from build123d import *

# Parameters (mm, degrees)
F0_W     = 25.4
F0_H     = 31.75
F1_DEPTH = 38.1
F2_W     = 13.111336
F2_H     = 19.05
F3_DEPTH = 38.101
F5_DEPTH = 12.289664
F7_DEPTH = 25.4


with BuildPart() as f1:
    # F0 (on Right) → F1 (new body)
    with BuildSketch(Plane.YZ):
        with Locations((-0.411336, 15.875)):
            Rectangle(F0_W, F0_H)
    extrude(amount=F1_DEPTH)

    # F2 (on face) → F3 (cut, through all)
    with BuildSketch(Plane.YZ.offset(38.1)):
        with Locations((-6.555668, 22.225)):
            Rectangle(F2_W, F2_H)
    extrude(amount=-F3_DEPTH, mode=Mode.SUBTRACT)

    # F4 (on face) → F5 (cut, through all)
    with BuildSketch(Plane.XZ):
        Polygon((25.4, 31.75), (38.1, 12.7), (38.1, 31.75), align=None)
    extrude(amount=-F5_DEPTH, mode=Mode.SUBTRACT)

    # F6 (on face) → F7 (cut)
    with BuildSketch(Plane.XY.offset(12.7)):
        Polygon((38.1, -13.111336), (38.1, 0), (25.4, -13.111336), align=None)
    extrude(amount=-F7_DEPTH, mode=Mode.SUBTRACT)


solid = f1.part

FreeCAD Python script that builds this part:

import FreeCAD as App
import Part
import Sketcher
from FreeCAD import Vector
Q = App.Units.Quantity

doc = App.newDocument("Part")
body = doc.addObject("PartDesign::Body", "Body")

sketch1 = body.newObject("Sketcher::SketchObject", "Sketch")
sketch1.AttachmentSupport = (doc.getObject("YZ_Plane"), [""])
sketch1.MapMode = "FlatFace"
sketch1.addGeometry(Part.LineSegment(Vector(-13, 32, 0), Vector(-13, 0, 0)), False)
sketch1.addGeometry(Part.LineSegment(Vector(-13, 0, 0), Vector(12, 0, 0)), False)
sketch1.addGeometry(Part.LineSegment(Vector(12, 0, 0), Vector(12, 32, 0)), False)
sketch1.addGeometry(Part.LineSegment(Vector(12, 32, 0), Vector(-13, 32, 0)), False)
sketch1.addConstraint(Sketcher.Constraint("Coincident", 0, 2, 1, 1))
sketch1.addConstraint(Sketcher.Constraint("Coincident", 1, 2, 2, 1))
sketch1.addConstraint(Sketcher.Constraint("Coincident", 2, 2, 3, 1))
sketch1.addConstraint(Sketcher.Constraint("Coincident", 3, 2, 0, 1))
sketch1.addConstraint(Sketcher.Constraint("Vertical", 0))
sketch1.addConstraint(Sketcher.Constraint("Horizontal", 1))
sketch1.addConstraint(Sketcher.Constraint("Vertical", 2))
sketch1.addConstraint(Sketcher.Constraint("Horizontal", 3))
sketch1.addConstraint(Sketcher.Constraint("PointOnObject", 0, 2, -1))
sketch1.addConstraint(Sketcher.Constraint("DistanceX", 1, 1, 1, 2, Q("1 in")))
sketch1.addConstraint(Sketcher.Constraint("DistanceY", 0, 2, 0, 1, Q("1.25 in")))
sketch1.addConstraint(Sketcher.Constraint("DistanceX", 0, 2, -1, 1, Q("13.111336 mm")))
pad1 = body.newObject("PartDesign::Pad", "Pad")
pad1.Profile = sketch1
pad1.Length = Q("1.5 in")

sketch2 = body.newObject("Sketcher::SketchObject", "Sketch001")
sketch2.AttachmentSupport = (doc.getObject("YZ_Plane"), [""])
sketch2.MapMode = "FlatFace"
sketch2.AttachmentOffset = App.Placement(Vector(0, 0, 1.5 * 25.4), App.Rotation())
sketch2.addGeometry(Part.LineSegment(Vector(-13, 32, 0), Vector(-13, 13, 0)), False)
sketch2.addGeometry(Part.LineSegment(Vector(-13, 13, 0), Vector(0, 13, 0)), False)
sketch2.addGeometry(Part.LineSegment(Vector(0, 13, 0), Vector(0, 32, 0)), False)
sketch2.addGeometry(Part.LineSegment(Vector(0, 32, 0), Vector(-13, 32, 0)), False)
sketch2.addConstraint(Sketcher.Constraint("Coincident", 0, 2, 1, 1))
sketch2.addConstraint(Sketcher.Constraint("Coincident", 1, 2, 2, 1))
sketch2.addConstraint(Sketcher.Constraint("Coincident", 2, 2, 3, 1))
sketch2.addConstraint(Sketcher.Constraint("Coincident", 3, 2, 0, 1))
sketch2.addConstraint(Sketcher.Constraint("Vertical", 0))
sketch2.addConstraint(Sketcher.Constraint("Horizontal", 1))
sketch2.addConstraint(Sketcher.Constraint("Vertical", 2))
sketch2.addConstraint(Sketcher.Constraint("Horizontal", 3))
sketch2.addConstraint(Sketcher.Constraint("PointOnObject", 1, 2, -2))
sketch2.addConstraint(Sketcher.Constraint("DistanceY", 0, 2, 0, 1, Q("0.75 in")))
sketch2.addConstraint(Sketcher.Constraint("DistanceY", -1, 1, 0, 2, Q("0.5 in")))
sketch2.addConstraint(Sketcher.Constraint("DistanceX", 1, 1, 1, 2, Q("13.111336 mm")))
pocket1 = body.newObject("PartDesign::Pocket", "Pocket")
pocket1.Profile = sketch2
pocket1.Type = "ThroughAll"

sketch3 = body.newObject("Sketcher::SketchObject", "Sketch002")
sketch3.AttachmentSupport = (doc.getObject("XZ_Plane"), [""])
sketch3.MapMode = "FlatFace"
sketch3.addGeometry(Part.LineSegment(Vector(25, 32, 0), Vector(38, 13, 0)), False)
sketch3.addGeometry(Part.LineSegment(Vector(38, 13, 0), Vector(38, 32, 0)), False)
sketch3.addGeometry(Part.LineSegment(Vector(38, 32, 0), Vector(25, 32, 0)), False)
sketch3.addConstraint(Sketcher.Constraint("Coincident", 0, 2, 1, 1))
sketch3.addConstraint(Sketcher.Constraint("Coincident", 1, 2, 2, 1))
sketch3.addConstraint(Sketcher.Constraint("Coincident", 2, 2, 0, 1))
sketch3.addConstraint(Sketcher.Constraint("Vertical", 1))
sketch3.addConstraint(Sketcher.Constraint("Horizontal", 2))
sketch3.addConstraint(Sketcher.Constraint("DistanceX", 2, 2, 2, 1, Q("0.5 in")))
sketch3.addConstraint(Sketcher.Constraint("DistanceX", -1, 1, 2, 2, Q("1 in")))
sketch3.addConstraint(Sketcher.Constraint("DistanceY", 1, 1, 1, 2, Q("0.75 in")))
sketch3.addConstraint(Sketcher.Constraint("DistanceY", -1, 1, 0, 2, Q("0.5 in")))
pocket2 = body.newObject("PartDesign::Pocket", "Pocket001")
pocket2.Profile = sketch3
pocket2.Type = "ThroughAll"

sketch4 = body.newObject("Sketcher::SketchObject", "Sketch003")
sketch4.AttachmentSupport = (doc.getObject("XY_Plane"), [""])
sketch4.MapMode = "FlatFace"
sketch4.AttachmentOffset = App.Placement(Vector(0, 0, 0.5 * 25.4), App.Rotation())
sketch4.addGeometry(Part.LineSegment(Vector(38, -13, 0), Vector(38, 0, 0)), False)
sketch4.addGeometry(Part.LineSegment(Vector(38, 0, 0), Vector(25, -13, 0)), False)
sketch4.addGeometry(Part.LineSegment(Vector(25, -13, 0), Vector(38, -13, 0)), False)
sketch4.addConstraint(Sketcher.Constraint("Coincident", 0, 2, 1, 1))
sketch4.addConstraint(Sketcher.Constraint("Coincident", 1, 2, 2, 1))
sketch4.addConstraint(Sketcher.Constraint("Coincident", 2, 2, 0, 1))
sketch4.addConstraint(Sketcher.Constraint("Vertical", 0))
sketch4.addConstraint(Sketcher.Constraint("Horizontal", 2))
sketch4.addConstraint(Sketcher.Constraint("PointOnObject", 0, 2, -1))
sketch4.addConstraint(Sketcher.Constraint("DistanceX", 2, 1, 2, 2, Q("0.5 in")))
sketch4.addConstraint(Sketcher.Constraint("DistanceX", -1, 1, 1, 2, Q("1 in")))
sketch4.addConstraint(Sketcher.Constraint("Distance", 1, Q("18.253688 mm")))
pocket3 = body.newObject("PartDesign::Pocket", "Pocket002")
pocket3.Profile = sketch4
pocket3.Length = Q("1 in")

doc.recompute()
